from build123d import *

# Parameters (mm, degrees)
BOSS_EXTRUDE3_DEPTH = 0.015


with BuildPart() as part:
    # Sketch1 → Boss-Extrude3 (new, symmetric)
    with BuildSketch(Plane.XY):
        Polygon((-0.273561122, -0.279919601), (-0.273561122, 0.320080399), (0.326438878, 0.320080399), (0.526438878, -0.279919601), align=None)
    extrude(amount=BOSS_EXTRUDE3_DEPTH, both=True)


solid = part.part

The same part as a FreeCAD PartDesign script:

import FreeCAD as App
import Part
import Sketcher

V = App.Vector

doc = App.newDocument("Part")
body = doc.addObject("PartDesign::Body", "Body")

# Sketch on XY plane
sketch1 = doc.addObject("Sketcher::SketchObject", "Sketch")
body.addObject(sketch1)
sketch1.AttachmentSupport = (doc.XY_Plane, [""])
sketch1.MapMode = "FlatFace"
sketch1.addGeometry(Part.LineSegment(V(-0.3, 0.3, 0), V(-0.3, -0.3, 0)), False)
sketch1.addGeometry(Part.LineSegment(V(-0.3, -0.3, 0), V(0.5, -0.3, 0)), False)
sketch1.addGeometry(Part.LineSegment(V(0.5, -0.3, 0), V(0.3, 0.3, 0)), False)
sketch1.addGeometry(Part.LineSegment(V(0.3, 0.3, 0), V(-0.3, 0.3, 0)), False)
sketch1.addConstraint(Sketcher.Constraint("Coincident", 0, 2, 1, 1))
sketch1.addConstraint(Sketcher.Constraint("Coincident", 1, 2, 2, 1))
sketch1.addConstraint(Sketcher.Constraint("Coincident", 2, 2, 3, 1))
sketch1.addConstraint(Sketcher.Constraint("Coincident", 3, 2, 0, 1))
sketch1.addConstraint(Sketcher.Constraint("Vertical", 0))
sketch1.addConstraint(Sketcher.Constraint("Horizontal", 1))
sketch1.addConstraint(Sketcher.Constraint("Horizontal", 3))
sketch1.addConstraint(Sketcher.Constraint("Equal", 3, 0))
sketch1.addConstraint(Sketcher.Constraint("DistanceX", 1, 1, 1, 2, 0.8))
sketch1.addConstraint(Sketcher.Constraint("DistanceX", 3, 2, 3, 1, 0.6))
sketch1.addConstraint(Sketcher.Constraint("DistanceX", 0, 2, -1, 1, 0.273561))
sketch1.addConstraint(Sketcher.Constraint("DistanceY", 0, 2, -1, 1, 0.27992))
pad1 = doc.addObject("PartDesign::Pad", "Pad")
body.addObject(pad1)
pad1.Profile = sketch1
pad1.Length = 0.03
pad1.Midplane = True

doc.recompute()
